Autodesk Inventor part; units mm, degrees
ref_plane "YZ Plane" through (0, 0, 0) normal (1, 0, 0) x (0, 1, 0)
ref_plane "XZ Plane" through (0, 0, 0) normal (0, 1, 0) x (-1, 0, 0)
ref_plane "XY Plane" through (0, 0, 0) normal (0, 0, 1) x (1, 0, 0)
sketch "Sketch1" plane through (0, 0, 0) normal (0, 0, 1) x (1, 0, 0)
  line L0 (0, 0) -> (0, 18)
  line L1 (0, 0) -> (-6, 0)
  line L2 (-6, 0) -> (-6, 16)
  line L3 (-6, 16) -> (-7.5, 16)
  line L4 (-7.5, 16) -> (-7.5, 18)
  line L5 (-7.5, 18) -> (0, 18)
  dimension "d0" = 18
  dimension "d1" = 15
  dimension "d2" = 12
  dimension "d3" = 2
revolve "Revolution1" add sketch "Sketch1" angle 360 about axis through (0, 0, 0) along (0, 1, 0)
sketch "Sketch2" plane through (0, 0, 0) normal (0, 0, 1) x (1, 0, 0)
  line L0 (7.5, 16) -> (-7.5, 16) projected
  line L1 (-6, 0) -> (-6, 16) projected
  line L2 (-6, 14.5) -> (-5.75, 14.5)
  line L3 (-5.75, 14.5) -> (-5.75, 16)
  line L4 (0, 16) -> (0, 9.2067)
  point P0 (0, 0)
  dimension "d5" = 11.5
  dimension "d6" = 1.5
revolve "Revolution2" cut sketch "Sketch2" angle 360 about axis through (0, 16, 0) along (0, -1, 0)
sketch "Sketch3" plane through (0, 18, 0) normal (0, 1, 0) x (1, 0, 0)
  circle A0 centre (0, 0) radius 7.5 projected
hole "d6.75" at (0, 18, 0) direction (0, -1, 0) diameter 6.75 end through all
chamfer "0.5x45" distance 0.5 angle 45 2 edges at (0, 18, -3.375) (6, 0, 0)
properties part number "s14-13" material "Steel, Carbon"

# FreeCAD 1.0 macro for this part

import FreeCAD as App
import Part
import Sketcher


def edges_at(feature, points):
    """Names of the edges that pass closest to the given points."""
    edges = feature.Shape.Edges
    near = lambda p: min(range(len(edges)), key=lambda i: edges[i].distToShape(Part.Vertex(*p))[0])
    return sorted({f"Edge{near(p) + 1}" for p in points})

doc = App.newDocument("Part")
body = doc.addObject("PartDesign::Body", "Body")

sketch1 = doc.addObject("Sketcher::SketchObject", "Sketch")
body.addObject(sketch1)
sketch1.AttachmentSupport = (doc.XY_Plane, [""])
sketch1.MapMode = "FlatFace"
sketch1.addGeometry([
    Part.LineSegment(App.Vector(-6, 0, 0), App.Vector(0, 0, 0)),
    Part.LineSegment(App.Vector(0, 0, 0), App.Vector(0, 18, 0)),
    Part.LineSegment(App.Vector(0, 18, 0), App.Vector(-7.5, 18, 0)),
    Part.LineSegment(App.Vector(-7.5, 18, 0), App.Vector(-7.5, 16, 0)),
    Part.LineSegment(App.Vector(-7.5, 16, 0), App.Vector(-6, 16, 0)),
    Part.LineSegment(App.Vector(-6, 16, 0), App.Vector(-6, 0, 0)),
], False)
sketch1.addConstraint([
    Sketcher.Constraint("Coincident", 0, 2, 1, 1),
    Sketcher.Constraint("Coincident", 1, 2, 2, 1),
    Sketcher.Constraint("Coincident", 2, 2, 3, 1),
    Sketcher.Constraint("Coincident", 3, 2, 4, 1),
    Sketcher.Constraint("Coincident", 4, 2, 5, 1),
    Sketcher.Constraint("Coincident", 5, 2, 0, 1),
    Sketcher.Constraint("Horizontal", 0),
    Sketcher.Constraint("Vertical", 1),
    Sketcher.Constraint("Horizontal", 2),
    Sketcher.Constraint("Vertical", 3),
    Sketcher.Constraint("Horizontal", 4),
    Sketcher.Constraint("Vertical", 5),
    Sketcher.Constraint("Coincident", 0, 2, -1, 1),
    Sketcher.Constraint("DistanceY", 1, 1, 1, 2, 18.0),
    Sketcher.Constraint("DistanceY", 3, 2, 3, 1, 2.0),
    Sketcher.Constraint("DistanceX", 0, 1, 0, 2, 6.0),
    Sketcher.Constraint("DistanceX", 2, 2, 2, 1, 7.5),
])
revolution = doc.addObject("PartDesign::Revolution", "Revolution")
body.addObject(revolution)
revolution.Profile = sketch1
revolution.ReferenceAxis = (sketch1, ["V_Axis"])
revolution.Angle = 360

sketch2 = doc.addObject("Sketcher::SketchObject", "Sketch001")
body.addObject(sketch2)
sketch2.AttachmentSupport = (doc.XY_Plane, [""])
sketch2.MapMode = "FlatFace"
sketch2.addGeometry([
    Part.LineSegment(App.Vector(-5.75, 14.5, 0), App.Vector(-5.75, 16, 0)),
    Part.LineSegment(App.Vector(-5.75, 16, 0), App.Vector(-6, 16, 0)),
    Part.LineSegment(App.Vector(-6, 16, 0), App.Vector(-6, 14.5, 0)),
    Part.LineSegment(App.Vector(-6, 14.5, 0), App.Vector(-5.75, 14.5, 0)),
], False)
sketch2.addConstraint([
    Sketcher.Constraint("Coincident", 0, 2, 1, 1),
    Sketcher.Constraint("Coincident", 1, 2, 2, 1),
    Sketcher.Constraint("Coincident", 2, 2, 3, 1),
    Sketcher.Constraint("Coincident", 3, 2, 0, 1),
    Sketcher.Constraint("Vertical", 0),
    Sketcher.Constraint("Horizontal", 1),
    Sketcher.Constraint("Vertical", 2),
    Sketcher.Constraint("Horizontal", 3),
    Sketcher.Constraint("DistanceY", 0, 1, 0, 2, 1.5),
    Sketcher.Constraint("DistanceY", -1, 1, 0, 2, 16.0),
    Sketcher.Constraint("DistanceX", 1, 2, -1, 1, 6.0),
    Sketcher.Constraint("DistanceX", 1, 2, 1, 1, 0.25),
])
groove = doc.addObject("PartDesign::Groove", "Groove")
body.addObject(groove)
groove.Profile = sketch2
groove.ReferenceAxis = (sketch2, ["V_Axis"])
groove.Angle = 360

sketch3 = doc.addObject("Sketcher::SketchObject", "Sketch002")
body.addObject(sketch3)
sketch3.AttachmentSupport = (doc.XZ_Plane, [""])
sketch3.MapMode = "FlatFace"
sketch3.AttachmentOffset = App.Placement(App.Vector(0, 0, -18), App.Rotation())
sketch3.addGeometry(Part.Circle(App.Vector(0, 0, 0), App.Vector(0, 0, 1), 3.4), False)
sketch3.addConstraint([
    Sketcher.Constraint("Coincident", 0, 3, -1, 1),
    Sketcher.Constraint("Diameter", 0, 6.75),
])
doc.recompute()
hole = doc.addObject("PartDesign::Hole", "Hole")
body.addObject(hole)
hole.Profile = sketch3
hole.ThreadType = "None"
hole.Diameter = 6.75
hole.DepthType = "ThroughAll"
hole.Reversed = True
doc.recompute()

chamfer = doc.addObject("PartDesign::Chamfer", "Chamfer")
body.addObject(chamfer)
chamfer.Base = (hole, edges_at(hole, [(0, 18, -3.375), (6, 0, 0)]))
chamfer.Size = 0.5

doc.recompute()
